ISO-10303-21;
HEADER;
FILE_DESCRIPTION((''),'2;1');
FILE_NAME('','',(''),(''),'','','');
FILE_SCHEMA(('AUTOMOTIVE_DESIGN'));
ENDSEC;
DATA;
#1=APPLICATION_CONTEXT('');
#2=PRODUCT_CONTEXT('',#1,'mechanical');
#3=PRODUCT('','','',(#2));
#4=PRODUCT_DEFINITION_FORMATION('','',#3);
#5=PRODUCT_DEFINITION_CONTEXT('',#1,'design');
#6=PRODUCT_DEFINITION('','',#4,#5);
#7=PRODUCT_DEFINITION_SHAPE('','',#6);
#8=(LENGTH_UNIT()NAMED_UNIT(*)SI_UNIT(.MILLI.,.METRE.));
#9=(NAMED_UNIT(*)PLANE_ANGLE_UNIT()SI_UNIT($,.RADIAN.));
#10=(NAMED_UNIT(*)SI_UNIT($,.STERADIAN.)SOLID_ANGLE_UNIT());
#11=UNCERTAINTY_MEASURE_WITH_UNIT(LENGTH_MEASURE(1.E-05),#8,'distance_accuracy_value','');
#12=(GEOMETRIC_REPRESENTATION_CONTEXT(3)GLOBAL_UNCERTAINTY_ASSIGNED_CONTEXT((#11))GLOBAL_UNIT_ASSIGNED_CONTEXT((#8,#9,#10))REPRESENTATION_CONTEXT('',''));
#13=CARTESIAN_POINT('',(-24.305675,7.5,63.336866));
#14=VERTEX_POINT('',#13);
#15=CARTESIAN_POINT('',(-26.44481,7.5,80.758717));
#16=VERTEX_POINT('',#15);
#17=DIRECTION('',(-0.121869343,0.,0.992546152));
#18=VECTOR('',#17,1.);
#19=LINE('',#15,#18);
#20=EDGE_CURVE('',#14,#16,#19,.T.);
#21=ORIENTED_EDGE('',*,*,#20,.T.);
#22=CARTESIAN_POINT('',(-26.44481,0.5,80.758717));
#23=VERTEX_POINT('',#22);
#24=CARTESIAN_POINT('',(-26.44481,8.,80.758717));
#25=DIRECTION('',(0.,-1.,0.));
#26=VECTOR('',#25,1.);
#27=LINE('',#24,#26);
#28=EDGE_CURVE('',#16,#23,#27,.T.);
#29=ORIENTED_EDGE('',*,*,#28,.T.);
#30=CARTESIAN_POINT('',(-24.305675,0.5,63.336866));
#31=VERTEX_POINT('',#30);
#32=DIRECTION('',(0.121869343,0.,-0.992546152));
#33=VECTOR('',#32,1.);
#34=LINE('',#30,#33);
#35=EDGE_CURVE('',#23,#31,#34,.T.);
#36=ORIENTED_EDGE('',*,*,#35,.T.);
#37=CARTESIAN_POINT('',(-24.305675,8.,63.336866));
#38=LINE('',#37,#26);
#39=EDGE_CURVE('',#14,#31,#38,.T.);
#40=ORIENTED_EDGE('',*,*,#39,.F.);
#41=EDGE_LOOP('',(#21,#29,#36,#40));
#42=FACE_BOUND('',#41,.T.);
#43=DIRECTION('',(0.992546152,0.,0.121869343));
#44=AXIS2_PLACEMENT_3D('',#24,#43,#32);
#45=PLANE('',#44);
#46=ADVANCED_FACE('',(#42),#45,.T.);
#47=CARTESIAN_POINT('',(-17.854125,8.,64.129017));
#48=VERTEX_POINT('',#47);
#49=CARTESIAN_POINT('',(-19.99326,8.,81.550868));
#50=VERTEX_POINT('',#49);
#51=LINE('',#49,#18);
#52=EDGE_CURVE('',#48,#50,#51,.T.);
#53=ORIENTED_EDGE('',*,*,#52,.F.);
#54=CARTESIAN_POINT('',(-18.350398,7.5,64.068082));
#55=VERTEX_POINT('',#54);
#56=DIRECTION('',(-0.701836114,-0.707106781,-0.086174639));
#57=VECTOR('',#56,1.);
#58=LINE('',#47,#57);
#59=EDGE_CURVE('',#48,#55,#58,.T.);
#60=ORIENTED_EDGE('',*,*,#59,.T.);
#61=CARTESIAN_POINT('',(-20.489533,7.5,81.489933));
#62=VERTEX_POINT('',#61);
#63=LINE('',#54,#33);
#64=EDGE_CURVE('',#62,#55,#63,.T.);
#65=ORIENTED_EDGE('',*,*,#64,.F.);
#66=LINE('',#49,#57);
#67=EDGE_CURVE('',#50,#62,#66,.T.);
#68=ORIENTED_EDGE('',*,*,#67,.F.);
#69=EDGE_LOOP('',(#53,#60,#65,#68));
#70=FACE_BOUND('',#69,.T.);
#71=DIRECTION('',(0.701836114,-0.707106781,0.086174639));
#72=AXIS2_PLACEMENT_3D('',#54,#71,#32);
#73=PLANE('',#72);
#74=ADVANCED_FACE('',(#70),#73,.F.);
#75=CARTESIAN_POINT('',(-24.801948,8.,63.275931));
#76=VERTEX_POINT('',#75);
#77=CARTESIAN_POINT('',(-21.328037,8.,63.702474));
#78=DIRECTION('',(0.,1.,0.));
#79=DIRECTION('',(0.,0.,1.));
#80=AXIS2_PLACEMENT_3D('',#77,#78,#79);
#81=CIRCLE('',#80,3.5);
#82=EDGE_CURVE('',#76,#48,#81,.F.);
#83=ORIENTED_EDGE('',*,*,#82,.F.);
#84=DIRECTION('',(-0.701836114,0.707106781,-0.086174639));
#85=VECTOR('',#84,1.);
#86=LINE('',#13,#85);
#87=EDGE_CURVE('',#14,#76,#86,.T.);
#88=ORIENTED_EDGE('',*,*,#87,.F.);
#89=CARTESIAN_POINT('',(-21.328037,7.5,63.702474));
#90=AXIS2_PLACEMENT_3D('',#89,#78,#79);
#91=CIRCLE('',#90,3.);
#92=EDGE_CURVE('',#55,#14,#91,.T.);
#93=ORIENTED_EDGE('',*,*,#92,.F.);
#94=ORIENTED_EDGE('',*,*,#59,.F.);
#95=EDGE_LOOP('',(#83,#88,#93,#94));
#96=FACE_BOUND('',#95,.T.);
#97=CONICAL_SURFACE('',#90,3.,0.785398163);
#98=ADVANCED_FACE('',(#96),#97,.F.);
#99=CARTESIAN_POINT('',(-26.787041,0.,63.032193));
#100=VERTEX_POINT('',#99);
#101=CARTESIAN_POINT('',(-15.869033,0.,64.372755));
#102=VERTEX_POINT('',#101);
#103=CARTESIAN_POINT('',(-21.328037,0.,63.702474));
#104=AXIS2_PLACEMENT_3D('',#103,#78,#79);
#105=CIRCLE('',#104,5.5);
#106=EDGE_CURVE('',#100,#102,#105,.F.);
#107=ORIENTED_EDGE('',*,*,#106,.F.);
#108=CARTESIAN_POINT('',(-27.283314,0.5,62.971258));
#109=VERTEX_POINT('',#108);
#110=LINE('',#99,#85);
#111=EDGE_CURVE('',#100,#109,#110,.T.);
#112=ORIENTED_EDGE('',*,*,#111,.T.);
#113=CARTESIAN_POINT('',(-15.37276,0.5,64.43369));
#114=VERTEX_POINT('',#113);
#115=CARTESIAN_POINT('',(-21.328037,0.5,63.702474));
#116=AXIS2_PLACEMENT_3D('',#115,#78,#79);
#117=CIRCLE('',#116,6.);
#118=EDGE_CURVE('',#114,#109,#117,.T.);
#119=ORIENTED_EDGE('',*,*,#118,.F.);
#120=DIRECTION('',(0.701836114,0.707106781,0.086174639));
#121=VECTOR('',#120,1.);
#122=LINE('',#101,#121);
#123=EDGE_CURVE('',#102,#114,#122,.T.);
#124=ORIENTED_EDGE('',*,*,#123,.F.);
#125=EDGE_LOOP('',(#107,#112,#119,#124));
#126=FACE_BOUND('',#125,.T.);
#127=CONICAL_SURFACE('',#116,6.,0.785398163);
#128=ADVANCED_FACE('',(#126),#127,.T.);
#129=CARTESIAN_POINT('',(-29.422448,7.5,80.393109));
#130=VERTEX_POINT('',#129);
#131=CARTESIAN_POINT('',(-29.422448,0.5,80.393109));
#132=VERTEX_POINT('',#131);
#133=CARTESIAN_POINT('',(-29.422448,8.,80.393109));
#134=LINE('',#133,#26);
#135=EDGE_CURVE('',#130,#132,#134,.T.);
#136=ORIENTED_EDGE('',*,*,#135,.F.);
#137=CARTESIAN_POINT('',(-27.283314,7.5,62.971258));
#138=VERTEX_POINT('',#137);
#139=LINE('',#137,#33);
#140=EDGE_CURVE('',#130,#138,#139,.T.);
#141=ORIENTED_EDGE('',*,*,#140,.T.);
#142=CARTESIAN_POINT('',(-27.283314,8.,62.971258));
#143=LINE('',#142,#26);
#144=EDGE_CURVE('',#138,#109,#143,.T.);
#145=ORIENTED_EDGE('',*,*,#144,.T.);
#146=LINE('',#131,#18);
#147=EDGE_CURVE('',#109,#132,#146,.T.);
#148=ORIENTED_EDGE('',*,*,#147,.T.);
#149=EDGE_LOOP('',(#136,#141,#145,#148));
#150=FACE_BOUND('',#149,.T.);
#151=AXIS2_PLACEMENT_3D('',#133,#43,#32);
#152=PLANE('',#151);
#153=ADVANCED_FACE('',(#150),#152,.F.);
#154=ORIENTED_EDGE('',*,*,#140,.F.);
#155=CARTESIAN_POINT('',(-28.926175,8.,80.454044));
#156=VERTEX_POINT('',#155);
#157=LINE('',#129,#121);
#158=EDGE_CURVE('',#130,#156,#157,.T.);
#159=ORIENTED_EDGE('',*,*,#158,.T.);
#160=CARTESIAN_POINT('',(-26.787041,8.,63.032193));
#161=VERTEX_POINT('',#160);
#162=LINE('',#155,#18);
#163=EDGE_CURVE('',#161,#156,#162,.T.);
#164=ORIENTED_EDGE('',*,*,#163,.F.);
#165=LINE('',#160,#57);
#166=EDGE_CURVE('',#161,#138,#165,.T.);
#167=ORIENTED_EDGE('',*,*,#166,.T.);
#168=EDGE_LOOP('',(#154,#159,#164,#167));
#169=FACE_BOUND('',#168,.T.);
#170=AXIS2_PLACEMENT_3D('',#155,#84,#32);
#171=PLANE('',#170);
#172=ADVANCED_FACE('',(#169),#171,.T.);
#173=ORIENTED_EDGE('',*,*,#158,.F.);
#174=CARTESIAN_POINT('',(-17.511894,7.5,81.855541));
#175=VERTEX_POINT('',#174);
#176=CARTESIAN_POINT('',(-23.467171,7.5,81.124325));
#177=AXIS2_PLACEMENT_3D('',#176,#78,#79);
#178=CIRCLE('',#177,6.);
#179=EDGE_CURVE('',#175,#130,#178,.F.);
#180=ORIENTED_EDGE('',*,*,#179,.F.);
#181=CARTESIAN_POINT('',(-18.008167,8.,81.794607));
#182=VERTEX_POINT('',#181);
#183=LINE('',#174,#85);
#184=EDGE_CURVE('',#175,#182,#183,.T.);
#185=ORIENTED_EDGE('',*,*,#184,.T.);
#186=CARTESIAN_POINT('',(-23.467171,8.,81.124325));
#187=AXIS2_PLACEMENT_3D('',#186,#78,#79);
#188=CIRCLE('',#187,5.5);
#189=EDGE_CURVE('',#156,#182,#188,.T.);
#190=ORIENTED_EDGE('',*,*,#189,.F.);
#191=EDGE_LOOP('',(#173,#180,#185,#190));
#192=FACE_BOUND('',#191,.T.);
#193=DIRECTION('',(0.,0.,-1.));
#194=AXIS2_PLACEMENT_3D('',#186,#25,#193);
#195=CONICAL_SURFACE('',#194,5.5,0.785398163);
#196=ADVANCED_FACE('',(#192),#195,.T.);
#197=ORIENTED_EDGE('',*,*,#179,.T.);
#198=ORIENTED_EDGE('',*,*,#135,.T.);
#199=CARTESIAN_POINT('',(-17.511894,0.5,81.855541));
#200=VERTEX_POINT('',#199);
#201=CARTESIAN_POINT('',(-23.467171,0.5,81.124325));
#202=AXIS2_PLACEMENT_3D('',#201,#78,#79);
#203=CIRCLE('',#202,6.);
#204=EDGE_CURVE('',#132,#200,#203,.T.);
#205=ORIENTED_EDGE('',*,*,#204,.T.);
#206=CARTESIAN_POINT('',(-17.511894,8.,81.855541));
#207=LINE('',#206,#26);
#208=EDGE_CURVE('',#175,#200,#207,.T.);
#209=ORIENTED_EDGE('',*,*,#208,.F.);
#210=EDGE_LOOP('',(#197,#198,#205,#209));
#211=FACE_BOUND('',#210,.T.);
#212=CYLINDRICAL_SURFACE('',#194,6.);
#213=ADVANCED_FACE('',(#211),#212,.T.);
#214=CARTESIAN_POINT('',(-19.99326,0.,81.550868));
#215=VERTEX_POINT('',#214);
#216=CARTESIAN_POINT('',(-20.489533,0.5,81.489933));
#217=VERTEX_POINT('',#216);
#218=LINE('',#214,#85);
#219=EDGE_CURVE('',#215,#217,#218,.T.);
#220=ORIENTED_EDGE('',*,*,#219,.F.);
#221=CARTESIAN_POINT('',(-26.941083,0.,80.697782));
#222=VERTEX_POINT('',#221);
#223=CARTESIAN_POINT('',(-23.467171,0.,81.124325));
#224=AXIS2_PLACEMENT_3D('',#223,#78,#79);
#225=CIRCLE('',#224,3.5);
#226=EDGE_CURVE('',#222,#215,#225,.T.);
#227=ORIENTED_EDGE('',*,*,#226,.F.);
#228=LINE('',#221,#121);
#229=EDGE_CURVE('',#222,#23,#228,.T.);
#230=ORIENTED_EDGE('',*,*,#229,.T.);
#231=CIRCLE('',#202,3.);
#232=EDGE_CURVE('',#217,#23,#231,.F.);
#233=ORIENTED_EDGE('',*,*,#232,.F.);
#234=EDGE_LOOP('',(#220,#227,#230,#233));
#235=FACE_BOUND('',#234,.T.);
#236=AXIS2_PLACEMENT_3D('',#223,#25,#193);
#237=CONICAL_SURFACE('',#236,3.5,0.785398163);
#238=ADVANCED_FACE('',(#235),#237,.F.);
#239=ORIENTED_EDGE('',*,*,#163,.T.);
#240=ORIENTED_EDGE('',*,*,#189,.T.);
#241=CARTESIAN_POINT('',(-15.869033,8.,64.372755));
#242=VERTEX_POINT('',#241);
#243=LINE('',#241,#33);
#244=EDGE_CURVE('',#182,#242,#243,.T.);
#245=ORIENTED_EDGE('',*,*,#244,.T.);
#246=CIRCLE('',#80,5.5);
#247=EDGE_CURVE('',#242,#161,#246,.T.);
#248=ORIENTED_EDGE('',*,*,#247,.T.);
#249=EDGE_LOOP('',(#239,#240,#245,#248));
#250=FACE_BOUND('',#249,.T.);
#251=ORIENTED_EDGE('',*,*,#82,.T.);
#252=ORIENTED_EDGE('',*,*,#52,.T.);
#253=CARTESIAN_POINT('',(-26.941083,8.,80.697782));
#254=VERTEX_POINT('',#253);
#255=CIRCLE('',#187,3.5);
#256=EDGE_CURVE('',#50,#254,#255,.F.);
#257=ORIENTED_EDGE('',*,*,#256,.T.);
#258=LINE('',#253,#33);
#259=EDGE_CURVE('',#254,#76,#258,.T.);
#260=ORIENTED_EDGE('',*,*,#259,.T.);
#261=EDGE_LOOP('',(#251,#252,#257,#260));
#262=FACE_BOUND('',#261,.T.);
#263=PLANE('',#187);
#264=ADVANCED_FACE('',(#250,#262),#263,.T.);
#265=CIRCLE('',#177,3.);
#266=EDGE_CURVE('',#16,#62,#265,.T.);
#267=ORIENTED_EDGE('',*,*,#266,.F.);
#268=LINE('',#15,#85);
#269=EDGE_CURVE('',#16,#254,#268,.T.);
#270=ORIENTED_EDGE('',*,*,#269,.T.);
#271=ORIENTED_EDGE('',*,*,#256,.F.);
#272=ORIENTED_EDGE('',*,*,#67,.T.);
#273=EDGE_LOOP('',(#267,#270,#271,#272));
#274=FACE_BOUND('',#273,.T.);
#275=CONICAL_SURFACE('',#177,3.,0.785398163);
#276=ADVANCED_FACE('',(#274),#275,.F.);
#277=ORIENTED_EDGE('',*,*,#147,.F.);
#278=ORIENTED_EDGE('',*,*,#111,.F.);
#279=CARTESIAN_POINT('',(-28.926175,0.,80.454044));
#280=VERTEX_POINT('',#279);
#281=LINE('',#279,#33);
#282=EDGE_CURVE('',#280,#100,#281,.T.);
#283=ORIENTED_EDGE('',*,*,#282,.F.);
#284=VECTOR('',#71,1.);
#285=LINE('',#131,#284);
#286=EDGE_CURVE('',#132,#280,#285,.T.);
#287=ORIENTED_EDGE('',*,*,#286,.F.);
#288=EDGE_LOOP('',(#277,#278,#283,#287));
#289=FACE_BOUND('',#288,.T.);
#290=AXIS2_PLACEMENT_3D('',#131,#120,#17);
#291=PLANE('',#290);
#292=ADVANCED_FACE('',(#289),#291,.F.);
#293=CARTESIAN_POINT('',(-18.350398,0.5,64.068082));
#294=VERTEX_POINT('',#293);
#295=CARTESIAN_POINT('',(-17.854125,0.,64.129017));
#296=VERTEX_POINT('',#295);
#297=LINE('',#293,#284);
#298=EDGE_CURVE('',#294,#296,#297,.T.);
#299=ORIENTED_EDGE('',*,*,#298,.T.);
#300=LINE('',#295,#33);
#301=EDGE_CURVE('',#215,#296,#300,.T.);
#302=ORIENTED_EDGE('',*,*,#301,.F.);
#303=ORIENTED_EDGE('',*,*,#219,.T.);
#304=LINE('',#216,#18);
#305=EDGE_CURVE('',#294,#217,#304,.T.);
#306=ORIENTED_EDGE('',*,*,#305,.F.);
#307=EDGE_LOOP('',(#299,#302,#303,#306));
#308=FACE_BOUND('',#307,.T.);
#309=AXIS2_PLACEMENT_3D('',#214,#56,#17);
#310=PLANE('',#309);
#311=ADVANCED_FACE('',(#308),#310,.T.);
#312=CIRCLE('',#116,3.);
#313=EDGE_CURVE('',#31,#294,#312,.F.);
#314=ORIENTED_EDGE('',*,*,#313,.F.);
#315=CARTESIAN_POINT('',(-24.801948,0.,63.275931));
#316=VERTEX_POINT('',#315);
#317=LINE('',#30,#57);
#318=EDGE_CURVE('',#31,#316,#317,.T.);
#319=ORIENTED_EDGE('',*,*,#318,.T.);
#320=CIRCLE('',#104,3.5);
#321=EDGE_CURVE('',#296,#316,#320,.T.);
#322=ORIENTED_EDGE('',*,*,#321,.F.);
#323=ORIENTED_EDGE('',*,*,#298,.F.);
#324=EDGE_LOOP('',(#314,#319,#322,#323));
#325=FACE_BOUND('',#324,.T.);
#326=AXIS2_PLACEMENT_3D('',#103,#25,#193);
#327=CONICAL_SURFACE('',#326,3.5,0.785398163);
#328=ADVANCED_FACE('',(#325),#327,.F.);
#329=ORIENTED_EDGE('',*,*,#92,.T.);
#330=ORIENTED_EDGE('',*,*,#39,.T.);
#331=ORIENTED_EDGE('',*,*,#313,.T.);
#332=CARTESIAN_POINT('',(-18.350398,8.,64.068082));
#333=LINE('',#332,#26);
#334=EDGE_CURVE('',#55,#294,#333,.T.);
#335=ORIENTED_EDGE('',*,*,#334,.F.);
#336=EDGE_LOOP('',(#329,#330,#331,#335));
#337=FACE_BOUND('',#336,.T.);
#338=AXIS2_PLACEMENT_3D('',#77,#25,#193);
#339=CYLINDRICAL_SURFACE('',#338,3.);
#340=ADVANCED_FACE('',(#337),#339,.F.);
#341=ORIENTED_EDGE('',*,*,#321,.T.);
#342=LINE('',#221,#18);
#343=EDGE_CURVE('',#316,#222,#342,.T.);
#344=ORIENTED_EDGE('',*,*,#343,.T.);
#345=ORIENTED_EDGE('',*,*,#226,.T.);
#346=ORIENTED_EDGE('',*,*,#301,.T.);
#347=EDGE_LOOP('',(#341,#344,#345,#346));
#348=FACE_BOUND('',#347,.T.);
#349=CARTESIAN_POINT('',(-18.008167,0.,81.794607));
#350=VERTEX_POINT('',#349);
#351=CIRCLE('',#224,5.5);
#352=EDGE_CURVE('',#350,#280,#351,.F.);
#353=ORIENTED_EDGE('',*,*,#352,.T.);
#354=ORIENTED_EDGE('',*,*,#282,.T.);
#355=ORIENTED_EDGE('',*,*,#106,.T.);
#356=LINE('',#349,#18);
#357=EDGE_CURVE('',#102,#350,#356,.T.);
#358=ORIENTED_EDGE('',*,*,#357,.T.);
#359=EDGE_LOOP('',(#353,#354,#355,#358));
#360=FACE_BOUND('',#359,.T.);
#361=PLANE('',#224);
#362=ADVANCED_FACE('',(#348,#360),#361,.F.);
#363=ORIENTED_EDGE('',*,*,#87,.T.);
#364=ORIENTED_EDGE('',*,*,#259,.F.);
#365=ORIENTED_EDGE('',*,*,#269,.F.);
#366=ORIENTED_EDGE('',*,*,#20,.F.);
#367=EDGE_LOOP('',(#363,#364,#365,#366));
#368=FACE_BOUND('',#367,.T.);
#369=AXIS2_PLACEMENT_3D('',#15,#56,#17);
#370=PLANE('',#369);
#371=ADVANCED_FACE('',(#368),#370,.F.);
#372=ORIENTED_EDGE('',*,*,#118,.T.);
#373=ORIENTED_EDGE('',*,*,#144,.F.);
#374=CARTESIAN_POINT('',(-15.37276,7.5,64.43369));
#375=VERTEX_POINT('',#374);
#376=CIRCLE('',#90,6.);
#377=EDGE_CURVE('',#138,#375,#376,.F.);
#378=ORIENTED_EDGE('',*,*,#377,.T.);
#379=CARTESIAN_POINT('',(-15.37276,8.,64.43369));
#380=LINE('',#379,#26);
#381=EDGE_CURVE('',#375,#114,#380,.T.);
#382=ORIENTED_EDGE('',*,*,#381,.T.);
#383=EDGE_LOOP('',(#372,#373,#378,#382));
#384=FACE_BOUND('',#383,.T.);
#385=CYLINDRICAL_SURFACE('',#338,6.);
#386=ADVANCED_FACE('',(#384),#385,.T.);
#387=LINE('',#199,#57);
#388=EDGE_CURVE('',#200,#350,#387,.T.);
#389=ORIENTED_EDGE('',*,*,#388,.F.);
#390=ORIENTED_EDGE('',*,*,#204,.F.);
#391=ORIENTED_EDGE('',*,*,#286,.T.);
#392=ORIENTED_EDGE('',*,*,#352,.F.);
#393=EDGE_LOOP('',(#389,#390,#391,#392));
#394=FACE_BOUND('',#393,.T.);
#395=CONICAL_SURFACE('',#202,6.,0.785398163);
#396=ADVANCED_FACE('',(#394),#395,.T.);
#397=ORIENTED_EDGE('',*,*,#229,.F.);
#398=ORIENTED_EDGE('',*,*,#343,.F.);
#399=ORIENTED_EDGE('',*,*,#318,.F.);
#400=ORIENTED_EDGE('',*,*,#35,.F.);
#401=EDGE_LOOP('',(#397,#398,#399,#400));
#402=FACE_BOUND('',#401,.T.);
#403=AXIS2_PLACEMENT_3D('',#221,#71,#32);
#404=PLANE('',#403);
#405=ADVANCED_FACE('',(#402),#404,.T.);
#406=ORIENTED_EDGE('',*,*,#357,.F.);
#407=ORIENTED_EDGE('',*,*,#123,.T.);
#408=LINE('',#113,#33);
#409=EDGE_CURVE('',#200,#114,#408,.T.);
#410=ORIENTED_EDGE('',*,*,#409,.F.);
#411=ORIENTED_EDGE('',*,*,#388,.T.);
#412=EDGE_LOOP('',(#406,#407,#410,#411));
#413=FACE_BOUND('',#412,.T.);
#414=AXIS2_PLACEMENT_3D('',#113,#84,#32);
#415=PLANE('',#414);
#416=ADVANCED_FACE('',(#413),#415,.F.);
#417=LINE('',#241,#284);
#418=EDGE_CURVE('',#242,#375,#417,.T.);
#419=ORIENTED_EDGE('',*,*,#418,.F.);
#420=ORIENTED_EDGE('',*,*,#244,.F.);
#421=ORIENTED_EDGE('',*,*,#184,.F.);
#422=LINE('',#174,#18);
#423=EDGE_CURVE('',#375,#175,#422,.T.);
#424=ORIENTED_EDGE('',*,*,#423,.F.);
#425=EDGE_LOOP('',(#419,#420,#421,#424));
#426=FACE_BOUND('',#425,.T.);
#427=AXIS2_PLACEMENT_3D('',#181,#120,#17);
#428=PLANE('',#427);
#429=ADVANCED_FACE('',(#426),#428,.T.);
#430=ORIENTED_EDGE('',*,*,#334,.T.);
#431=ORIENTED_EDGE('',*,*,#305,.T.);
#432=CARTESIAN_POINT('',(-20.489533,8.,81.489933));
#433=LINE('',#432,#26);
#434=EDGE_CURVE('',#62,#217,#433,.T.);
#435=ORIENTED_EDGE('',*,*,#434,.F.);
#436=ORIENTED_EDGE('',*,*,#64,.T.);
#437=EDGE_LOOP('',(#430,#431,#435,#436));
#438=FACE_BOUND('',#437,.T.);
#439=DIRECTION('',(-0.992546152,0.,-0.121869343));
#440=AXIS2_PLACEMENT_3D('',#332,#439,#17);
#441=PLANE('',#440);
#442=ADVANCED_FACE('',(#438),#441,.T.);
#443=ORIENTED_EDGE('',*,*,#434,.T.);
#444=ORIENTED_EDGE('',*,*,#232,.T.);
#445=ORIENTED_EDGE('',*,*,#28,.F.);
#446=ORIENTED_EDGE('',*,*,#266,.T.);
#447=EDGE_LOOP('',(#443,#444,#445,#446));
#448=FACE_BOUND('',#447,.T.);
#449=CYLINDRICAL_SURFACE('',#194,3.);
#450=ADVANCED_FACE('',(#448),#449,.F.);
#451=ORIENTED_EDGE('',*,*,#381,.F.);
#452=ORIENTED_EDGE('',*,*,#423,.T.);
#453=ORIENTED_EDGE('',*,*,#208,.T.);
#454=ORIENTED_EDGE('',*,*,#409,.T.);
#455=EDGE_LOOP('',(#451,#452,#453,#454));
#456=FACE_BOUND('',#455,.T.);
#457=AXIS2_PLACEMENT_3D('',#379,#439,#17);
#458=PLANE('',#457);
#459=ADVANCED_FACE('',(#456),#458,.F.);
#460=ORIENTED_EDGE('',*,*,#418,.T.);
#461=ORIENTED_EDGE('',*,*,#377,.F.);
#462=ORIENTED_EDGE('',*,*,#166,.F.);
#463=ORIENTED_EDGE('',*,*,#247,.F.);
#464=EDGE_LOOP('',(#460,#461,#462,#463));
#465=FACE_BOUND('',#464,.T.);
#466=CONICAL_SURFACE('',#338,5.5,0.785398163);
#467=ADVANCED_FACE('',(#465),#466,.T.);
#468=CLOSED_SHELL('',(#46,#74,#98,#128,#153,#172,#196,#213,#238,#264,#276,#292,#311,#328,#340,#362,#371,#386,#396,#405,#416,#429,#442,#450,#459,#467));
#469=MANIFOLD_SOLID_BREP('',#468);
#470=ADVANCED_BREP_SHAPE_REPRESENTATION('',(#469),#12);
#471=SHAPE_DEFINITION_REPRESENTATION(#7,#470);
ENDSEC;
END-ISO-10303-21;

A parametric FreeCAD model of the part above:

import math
import FreeCAD as App
import Part
import Sketcher
from FreeCAD import Vector
Q = App.Units.Quantity


def edges_at(feature, points):
    """Names of the edges that pass closest to the given points."""
    edges = feature.Shape.Edges
    near = lambda p: min(range(len(edges)), key=lambda i: edges[i].distToShape(Part.Vertex(*p))[0])
    return sorted({f"Edge{near(p) + 1}" for p in points})

doc = App.newDocument("Part")
body = doc.addObject("PartDesign::Body", "Body")

sketch1 = body.newObject("Sketcher::SketchObject", "Sketch")
sketch1.AttachmentSupport = (doc.getObject("XZ_Plane"), [""])
sketch1.MapMode = "FlatFace"
sketch1.addGeometry(Part.LineSegment(Vector(-27.3, 63, 0), Vector(-29.4, 80.4, 0)), False)
sketch1.addGeometry(Part.ArcOfCircle(Part.Circle(Vector(-23.5, 81.1, 0), Vector(0, 0, 1), 6), math.radians(7), math.radians(187)), False)
sketch1.addGeometry(Part.LineSegment(Vector(-17.5, 81.9, 0), Vector(-15.4, 64.4, 0)), False)
sketch1.addGeometry(Part.ArcOfCircle(Part.Circle(Vector(-21.3, 63.7, 0), Vector(0, 0, 1), 6), math.radians(-173), math.radians(7)), False)
sketch1.addGeometry(Part.LineSegment(Vector(-26.4, 80.8, 0), Vector(-24.3, 63.3, 0)), False)
sketch1.addGeometry(Part.ArcOfCircle(Part.Circle(Vector(-21.3, 63.7, 0), Vector(0, 0, 1), 3), math.radians(-173), math.radians(7)), False)
sketch1.addGeometry(Part.LineSegment(Vector(-18.4, 64.1, 0), Vector(-20.5, 81.5, 0)), False)
sketch1.addGeometry(Part.ArcOfCircle(Part.Circle(Vector(-23.5, 81.1, 0), Vector(0, 0, 1), 3), math.radians(7), math.radians(187)), False)
sketch1.addConstraint(Sketcher.Constraint("Tangent", 0, 2, 1, 2))
sketch1.addConstraint(Sketcher.Constraint("Tangent", 1, 1, 2, 1))
sketch1.addConstraint(Sketcher.Constraint("Tangent", 2, 2, 3, 2))
sketch1.addConstraint(Sketcher.Constraint("Tangent", 3, 1, 0, 1))
sketch1.addConstraint(Sketcher.Constraint("Tangent", 4, 2, 5, 1))
sketch1.addConstraint(Sketcher.Constraint("Tangent", 5, 2, 6, 1))
sketch1.addConstraint(Sketcher.Constraint("Tangent", 6, 2, 7, 1))
sketch1.addConstraint(Sketcher.Constraint("Tangent", 7, 2, 4, 1))
sketch1.addConstraint(Sketcher.Constraint("Coincident", 5, 3, 3, 3))
sketch1.addConstraint(Sketcher.Constraint("Coincident", 7, 3, 1, 3))
sketch1.addConstraint(Sketcher.Constraint("Equal", 1, 3))
sketch1.addConstraint(Sketcher.Constraint("Equal", 5, 7))
sketch1.addConstraint(Sketcher.Constraint("Radius", 1, 6.0))
sketch1.addConstraint(Sketcher.Constraint("Radius", 5, 3.0))
sketch1.addConstraint(Sketcher.Constraint("Angle", 0, Q("97 deg")))
sketch1.addConstraint(Sketcher.Constraint("DistanceX", 5, 2, -1, 1, 18.350398))
sketch1.addConstraint(Sketcher.Constraint("DistanceX", 1, 3, -1, 1, 23.467171))
sketch1.addConstraint(Sketcher.Constraint("DistanceY", -1, 1, 0, 2, 80.393109))
pad1 = body.newObject("PartDesign::Pad", "Pad")
pad1.Profile = sketch1
pad1.Length = 8
pad1.Reversed = True
doc.recompute()

chamfer = body.newObject("PartDesign::Chamfer", "Chamfer")
chamfer.Base = (pad1, edges_at(pad1, [
    (-20.597, 8, 57.747),
    (-28.353, 8, 71.682),
    (-20.962, 0, 60.725),
    (-25.375, 0, 72.048),
    (-23.833, 0, 84.102),
    (-19.42, 0, 72.779),
    (-20.962, 8, 60.725),
    (-25.375, 8, 72.048),
    (-23.833, 8, 84.102),
    (-19.42, 8, 72.779),
    (-24.198, 8, 87.08),
    (-28.353, 0, 71.682),
    (-20.597, 0, 57.747),
    (-16.442, 0, 73.145),
    (-24.198, 0, 87.08),
    (-16.442, 8, 73.145),
]))
chamfer.Size = 0.5

doc.recompute()
